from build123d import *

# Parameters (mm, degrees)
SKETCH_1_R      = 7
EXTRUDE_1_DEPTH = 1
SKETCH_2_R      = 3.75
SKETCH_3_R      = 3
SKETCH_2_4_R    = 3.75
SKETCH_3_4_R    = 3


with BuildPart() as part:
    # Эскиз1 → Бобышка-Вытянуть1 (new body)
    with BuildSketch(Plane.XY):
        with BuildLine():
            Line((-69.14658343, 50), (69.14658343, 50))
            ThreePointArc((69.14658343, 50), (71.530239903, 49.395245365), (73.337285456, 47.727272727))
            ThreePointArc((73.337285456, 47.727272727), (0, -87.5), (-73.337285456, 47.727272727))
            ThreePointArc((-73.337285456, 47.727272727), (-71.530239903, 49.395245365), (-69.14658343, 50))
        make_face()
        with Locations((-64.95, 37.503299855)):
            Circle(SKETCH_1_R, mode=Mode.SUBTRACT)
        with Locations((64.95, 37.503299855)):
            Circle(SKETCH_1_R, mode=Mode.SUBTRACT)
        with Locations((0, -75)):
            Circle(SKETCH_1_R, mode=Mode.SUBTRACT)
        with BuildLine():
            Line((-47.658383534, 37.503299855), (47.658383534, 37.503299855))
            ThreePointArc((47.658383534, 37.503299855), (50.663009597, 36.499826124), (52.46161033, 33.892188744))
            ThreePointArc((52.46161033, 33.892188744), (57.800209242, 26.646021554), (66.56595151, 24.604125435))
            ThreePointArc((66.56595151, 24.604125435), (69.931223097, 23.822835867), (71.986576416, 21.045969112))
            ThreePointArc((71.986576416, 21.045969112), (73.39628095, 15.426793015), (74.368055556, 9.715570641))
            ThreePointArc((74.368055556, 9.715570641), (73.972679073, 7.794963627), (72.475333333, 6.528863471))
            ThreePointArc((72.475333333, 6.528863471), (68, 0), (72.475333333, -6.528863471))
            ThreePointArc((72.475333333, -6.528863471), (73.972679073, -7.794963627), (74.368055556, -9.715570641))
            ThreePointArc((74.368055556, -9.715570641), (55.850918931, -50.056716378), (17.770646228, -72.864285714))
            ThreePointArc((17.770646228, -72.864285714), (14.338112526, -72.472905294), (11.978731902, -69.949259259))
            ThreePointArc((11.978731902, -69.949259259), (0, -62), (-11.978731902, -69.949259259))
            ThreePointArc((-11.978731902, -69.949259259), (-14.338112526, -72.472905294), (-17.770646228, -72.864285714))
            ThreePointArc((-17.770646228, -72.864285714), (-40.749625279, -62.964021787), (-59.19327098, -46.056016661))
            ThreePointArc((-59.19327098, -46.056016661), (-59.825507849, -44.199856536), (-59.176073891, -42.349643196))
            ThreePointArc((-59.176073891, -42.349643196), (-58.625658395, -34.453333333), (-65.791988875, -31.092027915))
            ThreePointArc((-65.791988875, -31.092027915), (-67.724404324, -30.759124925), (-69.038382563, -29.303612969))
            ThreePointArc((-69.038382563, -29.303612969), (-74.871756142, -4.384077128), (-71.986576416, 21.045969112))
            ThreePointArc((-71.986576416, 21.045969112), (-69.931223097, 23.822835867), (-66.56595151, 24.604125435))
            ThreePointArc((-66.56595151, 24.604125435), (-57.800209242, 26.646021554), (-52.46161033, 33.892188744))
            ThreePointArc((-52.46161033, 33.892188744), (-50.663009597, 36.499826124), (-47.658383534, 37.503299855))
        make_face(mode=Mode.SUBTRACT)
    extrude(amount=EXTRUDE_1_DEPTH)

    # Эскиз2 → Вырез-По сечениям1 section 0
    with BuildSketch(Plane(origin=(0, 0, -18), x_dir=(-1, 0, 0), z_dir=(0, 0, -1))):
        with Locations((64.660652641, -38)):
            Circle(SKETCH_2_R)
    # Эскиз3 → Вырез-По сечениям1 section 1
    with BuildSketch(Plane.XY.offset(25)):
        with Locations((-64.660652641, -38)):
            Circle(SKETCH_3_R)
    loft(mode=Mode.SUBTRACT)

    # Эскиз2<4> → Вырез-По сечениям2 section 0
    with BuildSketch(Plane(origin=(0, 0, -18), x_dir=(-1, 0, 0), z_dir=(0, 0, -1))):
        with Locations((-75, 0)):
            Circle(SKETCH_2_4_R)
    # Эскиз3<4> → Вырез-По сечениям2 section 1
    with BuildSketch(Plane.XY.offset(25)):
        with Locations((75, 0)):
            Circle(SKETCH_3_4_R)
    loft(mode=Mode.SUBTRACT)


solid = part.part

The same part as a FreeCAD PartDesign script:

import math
import FreeCAD as App
import Part
import Sketcher

doc = App.newDocument("Part")
params = doc.addObject("Spreadsheet::Sheet", "Params")
for row, (alias, value) in enumerate([
    ("sketch1_diameter", "14 mm"),
    ("sketch1_radius", "5 mm"),
    ("sketch1_radius2", "13 mm"),
    ("sketch1_radius3", "75 mm"),
    ("sketch1_radius4", "3 mm"),
    ("pad1_length", "1 mm"),
    ("sketch2_diameter", "7.5 mm"),
    ("sketch3_diameter", "6 mm"),
    ("sketch4_diameter", "7.5 mm"),
    ("sketch5_diameter", "6 mm"),
], start=1):
    params.set(f"A{row}", alias)
    params.set(f"B{row}", "=" + value)
    params.setAlias(f"B{row}", alias)

body = doc.addObject("PartDesign::Body", "Body")

# Sketch on XY plane
sketch1 = body.newObject("Sketcher::SketchObject", "Sketch")
sketch1.AttachmentSupport = (doc.getObject("XY_Plane"), [""])
sketch1.MapMode = "FlatFace"
sketch1.addGeometry(Part.LineSegment(App.Vector(69.1, 50, 0), App.Vector(-69.1, 50, 0)), False)
sketch1.addGeometry(Part.ArcOfCircle(Part.Circle(App.Vector(-69.1, 45, 0), App.Vector(0, 0, 1), 5), math.radians(90), math.radians(147)), False)
sketch1.addGeometry(Part.ArcOfCircle(Part.Circle(App.Vector(0, 0, 0), App.Vector(0, 0, 1), 87.5), math.radians(147), math.radians(393)), False)
sketch1.addGeometry(Part.ArcOfCircle(Part.Circle(App.Vector(69.1, 45, 0), App.Vector(0, 0, 1), 5), math.radians(33), math.radians(90)), False)
sketch1.addGeometry(Part.Circle(App.Vector(0, -75, 0), App.Vector(0, 0, 1), 7), False)
sketch1.addGeometry(Part.Circle(App.Vector(65, 37.5, 0), App.Vector(0, 0, 1), 7), False)
sketch1.addGeometry(Part.LineSegment(App.Vector(-47.7, 37.5, 0), App.Vector(47.7, 37.5, 0)), False)
sketch1.addGeometry(Part.ArcOfCircle(Part.Circle(App.Vector(47.7, 32.5, 0), App.Vector(0, 0, 1), 5), math.radians(16), math.radians(90)), False)
sketch1.addGeometry(Part.ArcOfCircle(Part.Circle(App.Vector(65, 37.5, 0), App.Vector(0, 0, 1), 13), math.radians(-164), math.radians(-83)), False)
sketch1.addGeometry(Part.ArcOfCircle(Part.Circle(App.Vector(67.2, 19.6, 0), App.Vector(0, 0, 1), 5), math.radians(16), math.radians(97)), False)
sketch1.addGeometry(Part.ArcOfCircle(Part.Circle(App.Vector(0, 0, 0), App.Vector(0, 0, 1), 75), math.radians(7.44), math.radians(16.3)), False)
sketch1.addGeometry(Part.ArcOfCircle(Part.Circle(App.Vector(71.4, 9.3, 0), App.Vector(0, 0, 1), 3), math.radians(-69), math.radians(7)), False)
sketch1.addGeometry(Part.ArcOfCircle(Part.Circle(App.Vector(75, 0, 0), App.Vector(0, 0, 1), 7), math.radians(111), math.radians(249)), False)
sketch1.addGeometry(Part.ArcOfCircle(Part.Circle(App.Vector(71.4, -9.3, 0), App.Vector(0, 0, 1), 3), math.radians(-7), math.radians(69)), False)
sketch1.addGeometry(Part.ArcOfCircle(Part.Circle(App.Vector(0, 0, 0), App.Vector(0, 0, 1), 75), math.radians(-76), math.radians(-7)), False)
sketch1.addGeometry(Part.ArcOfCircle(Part.Circle(App.Vector(16.6, -68, 0), App.Vector(0, 0, 1), 5), math.radians(-157), math.radians(-76)), False)
sketch1.addGeometry(Part.ArcOfCircle(Part.Circle(App.Vector(0, -75, 0), App.Vector(0, 0, 1), 13), math.radians(23), math.radians(157)), False)
sketch1.addGeometry(Part.ArcOfCircle(Part.Circle(App.Vector(-16.6, -68, 0), App.Vector(0, 0, 1), 5), math.radians(-104), math.radians(-23)), False)
sketch1.addGeometry(Part.ArcOfCircle(Part.Circle(App.Vector(0, 0, 0), App.Vector(0, 0, 1), 75), math.radians(-142), math.radians(-104)), False)
sketch1.addGeometry(Part.ArcOfCircle(Part.Circle(App.Vector(-56.8, -44.2, 0), App.Vector(0, 0, 1), 3), math.radians(142), math.radians(218)), False)
sketch1.addGeometry(Part.ArcOfCircle(Part.Circle(App.Vector(-64.7, -38, 0), App.Vector(0, 0, 1), 7), math.radians(-38), math.radians(99)), False)
sketch1.addGeometry(Part.ArcOfCircle(Part.Circle(App.Vector(-66.3, -28.1, 0), App.Vector(0, 0, 1), 3), math.radians(-157), math.radians(-81)), False)
sketch1.addGeometry(Part.ArcOfCircle(Part.Circle(App.Vector(0, 0, 0), App.Vector(0, 0, 1), 75), math.radians(164), math.radians(203)), False)
sketch1.addGeometry(Part.ArcOfCircle(Part.Circle(App.Vector(-67.2, 19.6, 0), App.Vector(0, 0, 1), 5), math.radians(83), math.radians(164)), False)
sketch1.addGeometry(Part.ArcOfCircle(Part.Circle(App.Vector(-65, 37.5, 0), App.Vector(0, 0, 1), 13), math.radians(-97), math.radians(-16)), False)
sketch1.addGeometry(Part.ArcOfCircle(Part.Circle(App.Vector(-47.7, 32.5, 0), App.Vector(0, 0, 1), 5), math.radians(90), math.radians(164)), False)
sketch1.addGeometry(Part.Circle(App.Vector(-65, 37.5, 0), App.Vector(0, 0, 1), 7), False)
sketch1.addConstraint(Sketcher.Constraint("Tangent", 0, 2, 1, 1))
sketch1.addConstraint(Sketcher.Constraint("Tangent", 1, 2, 2, 1))
sketch1.addConstraint(Sketcher.Constraint("Tangent", 2, 2, 3, 1))
sketch1.addConstraint(Sketcher.Constraint("Tangent", 3, 2, 0, 1))
sketch1.addConstraint(Sketcher.Constraint("Tangent", 6, 2, 7, 2))
sketch1.addConstraint(Sketcher.Constraint("Tangent", 7, 1, 8, 1))
sketch1.addConstraint(Sketcher.Constraint("Tangent", 8, 2, 9, 2))
sketch1.addConstraint(Sketcher.Constraint("Tangent", 9, 1, 10, 2))
sketch1.addConstraint(Sketcher.Constraint("Tangent", 10, 1, 11, 2))
sketch1.addConstraint(Sketcher.Constraint("Tangent", 11, 1, 12, 1))
sketch1.addConstraint(Sketcher.Constraint("Tangent", 12, 2, 13, 2))
sketch1.addConstraint(Sketcher.Constraint("Tangent", 13, 1, 14, 2))
sketch1.addConstraint(Sketcher.Constraint("Tangent", 14, 1, 15, 2))
sketch1.addConstraint(Sketcher.Constraint("Tangent", 15, 1, 16, 1))
sketch1.addConstraint(Sketcher.Constraint("Tangent", 16, 2, 17, 2))
sketch1.addConstraint(Sketcher.Constraint("Tangent", 17, 1, 18, 2))
sketch1.addConstraint(Sketcher.Constraint("Tangent", 18, 1, 19, 2))
sketch1.addConstraint(Sketcher.Constraint("Tangent", 19, 1, 20, 1))
sketch1.addConstraint(Sketcher.Constraint("Tangent", 20, 2, 21, 2))
sketch1.addConstraint(Sketcher.Constraint("Tangent", 21, 1, 22, 2))
sketch1.addConstraint(Sketcher.Constraint("Tangent", 22, 1, 23, 2))
sketch1.addConstraint(Sketcher.Constraint("Tangent", 23, 1, 24, 1))
sketch1.addConstraint(Sketcher.Constraint("Tangent", 24, 2, 25, 2))
sketch1.addConstraint(Sketcher.Constraint("Tangent", 25, 1, 6, 1))
sketch1.addConstraint(Sketcher.Constraint("Horizontal", 0))
sketch1.addConstraint(Sketcher.Constraint("Horizontal", 6))
sketch1.addConstraint(Sketcher.Constraint("Coincident", 2, 3, -1, 1))
sketch1.addConstraint(Sketcher.Constraint("Coincident", 10, 3, -1, 1))
sketch1.addConstraint(Sketcher.Constraint("Coincident", 14, 3, -1, 1))
sketch1.addConstraint(Sketcher.Constraint("Coincident", 18, 3, -1, 1))
sketch1.addConstraint(Sketcher.Constraint("Coincident", 22, 3, -1, 1))
sketch1.addConstraint(Sketcher.Constraint("Coincident", 8, 3, 5, 3))
sketch1.addConstraint(Sketcher.Constraint("Coincident", 16, 3, 4, 3))
sketch1.addConstraint(Sketcher.Constraint("Coincident", 26, 3, 24, 3))
sketch1.addConstraint(Sketcher.Constraint("Equal", 1, 3))
sketch1.addConstraint(Sketcher.Constraint("Equal", 4, 5))
sketch1.addConstraint(Sketcher.Constraint("Equal", 3, 7))
sketch1.addConstraint(Sketcher.Constraint("Equal", 7, 9))
sketch1.addConstraint(Sketcher.Constraint("Equal", 5, 12))
sketch1.addConstraint(Sketcher.Constraint("Equal", 11, 13))
sketch1.addConstraint(Sketcher.Constraint("Equal", 10, 14))
sketch1.addConstraint(Sketcher.Constraint("Equal", 9, 15))
sketch1.addConstraint(Sketcher.Constraint("Equal", 8, 16))
sketch1.addConstraint(Sketcher.Constraint("Equal", 15, 17))
sketch1.addConstraint(Sketcher.Constraint("Equal", 14, 18))
sketch1.addConstraint(Sketcher.Constraint("Equal", 13, 19))
sketch1.addConstraint(Sketcher.Constraint("Equal", 12, 20))
sketch1.addConstraint(Sketcher.Constraint("Equal", 19, 21))
sketch1.addConstraint(Sketcher.Constraint("Equal", 18, 22))
sketch1.addConstraint(Sketcher.Constraint("Equal", 17, 23))
sketch1.addConstraint(Sketcher.Constraint("Equal", 16, 24))
sketch1.addConstraint(Sketcher.Constraint("Equal", 23, 25))
sketch1.addConstraint(Sketcher.Constraint("Equal", 20, 26))
sketch1.addConstraint(Sketcher.Constraint("Symmetric", 5, 3, 24, 3, -2))
sketch1.addConstraint(Sketcher.Constraint("PointOnObject", 4, 3, -2))
sketch1.addConstraint(Sketcher.Constraint("PointOnObject", 12, 3, -1))
sketch1.addConstraint(Sketcher.Constraint("Horizontal", 26, 3, 6, 2))
sketch1.addConstraint(Sketcher.Constraint("Diameter", 4, 14.0))
sketch1.addConstraint(Sketcher.Constraint("Radius", 1, 5.0))
sketch1.addConstraint(Sketcher.Constraint("Radius", 8, 13.0))
sketch1.addConstraint(Sketcher.Constraint("Radius", 10, 75.0))
sketch1.addConstraint(Sketcher.Constraint("Radius", 11, 3.0))
sketch1.addConstraint(Sketcher.Constraint("Radius", 2, 87.5))
sketch1.addConstraint(Sketcher.Constraint("DistanceY", -1, 1, 1, 3, 45.0))
sketch1.addConstraint(Sketcher.Constraint("DistanceY", 4, 3, -1, 1, 75.0))
sketch1.addConstraint(Sketcher.Constraint("DistanceX", -1, 1, 12, 3, 75.0))
sketch1.addConstraint(Sketcher.Constraint("DistanceY", 20, 3, -1, 1, 38.0))
sketch1.addConstraint(Sketcher.Constraint("DistanceX", -1, 1, 5, 3, 64.95))
sketch1.addConstraint(Sketcher.Constraint("DistanceY", -1, 1, 5, 3, 37.5033))
sketch1.addConstraint(Sketcher.Constraint("DistanceY", 17, 3, 21, 3, 39.875198))
sketch1.setExpression("Constraints[57]", "Params.sketch1_diameter")
sketch1.setExpression("Constraints[58]", "Params.sketch1_radius")
sketch1.setExpression("Constraints[59]", "Params.sketch1_radius2")
sketch1.setExpression("Constraints[60]", "Params.sketch1_radius3")
sketch1.setExpression("Constraints[61]", "Params.sketch1_radius4")
pad1 = body.newObject("PartDesign::Pad", "Pad")
pad1.Profile = sketch1
pad1.setExpression("Length", "Params.pad1_length")

# Sketch on XY plane
sketch2 = body.newObject("Sketcher::SketchObject", "Sketch001")
sketch2.AttachmentSupport = (doc.getObject("XY_Plane"), [""])
sketch2.MapMode = "FlatFace"
sketch2.AttachmentOffset = App.Placement(App.Vector(0, 0, -18), App.Rotation())
sketch2.addGeometry(Part.Circle(App.Vector(-64.7, -38, 0), App.Vector(0, 0, 1), 3.8), False)
sketch2.addConstraint(Sketcher.Constraint("Diameter", 0, 7.5))
sketch2.addConstraint(Sketcher.Constraint("DistanceY", 0, 3, -1, 1, 38.0))
sketch2.addConstraint(Sketcher.Constraint("DistanceX", 0, 3, -1, 1, 64.660653))
sketch2.setExpression("Constraints[0]", "Params.sketch2_diameter")

# Sketch on XY plane
sketch3 = body.newObject("Sketcher::SketchObject", "Sketch002")
sketch3.AttachmentSupport = (doc.getObject("XY_Plane"), [""])
sketch3.MapMode = "FlatFace"
sketch3.AttachmentOffset = App.Placement(App.Vector(0, 0, 25), App.Rotation())
sketch3.addGeometry(Part.Circle(App.Vector(-64.7, -38, 0), App.Vector(0, 0, 1), 3), False)
sketch3.addConstraint(Sketcher.Constraint("Diameter", 0, 6.0))
sketch3.addConstraint(Sketcher.Constraint("DistanceY", 0, 3, -1, 1, 38.0))
sketch3.addConstraint(Sketcher.Constraint("DistanceX", 0, 3, -1, 1, 64.660653))
sketch3.setExpression("Constraints[0]", "Params.sketch3_diameter")

subtractiveloft = body.newObject("PartDesign::SubtractiveLoft", "SubtractiveLoft")
subtractiveloft.Profile = sketch2
subtractiveloft.Sections = [sketch3]

# Sketch on XY plane
sketch4 = body.newObject("Sketcher::SketchObject", "Sketch003")
sketch4.AttachmentSupport = (doc.getObject("XY_Plane"), [""])
sketch4.MapMode = "FlatFace"
sketch4.AttachmentOffset = App.Placement(App.Vector(0, 0, -18), App.Rotation())
sketch4.addGeometry(Part.Circle(App.Vector(75, 0, 0), App.Vector(0, 0, 1), 3.8), False)
sketch4.addConstraint(Sketcher.Constraint("PointOnObject", 0, 3, -1))
sketch4.addConstraint(Sketcher.Constraint("Diameter", 0, 7.5))
sketch4.addConstraint(Sketcher.Constraint("DistanceX", -1, 1, 0, 3, 75.0))
sketch4.setExpression("Constraints[1]", "Params.sketch4_diameter")

# Sketch on XY plane
sketch5 = body.newObject("Sketcher::SketchObject", "Sketch004")
sketch5.AttachmentSupport = (doc.getObject("XY_Plane"), [""])
sketch5.MapMode = "FlatFace"
sketch5.AttachmentOffset = App.Placement(App.Vector(0, 0, 25), App.Rotation())
sketch5.addGeometry(Part.Circle(App.Vector(75, 0, 0), App.Vector(0, 0, 1), 3), False)
sketch5.addConstraint(Sketcher.Constraint("PointOnObject", 0, 3, -1))
sketch5.addConstraint(Sketcher.Constraint("Diameter", 0, 6.0))
sketch5.addConstraint(Sketcher.Constraint("DistanceX", -1, 1, 0, 3, 75.0))
sketch5.setExpression("Constraints[1]", "Params.sketch5_diameter")

subtractiveloft2 = body.newObject("PartDesign::SubtractiveLoft", "SubtractiveLoft001")
subtractiveloft2.Profile = sketch4
subtractiveloft2.Sections = [sketch5]

doc.recompute()
